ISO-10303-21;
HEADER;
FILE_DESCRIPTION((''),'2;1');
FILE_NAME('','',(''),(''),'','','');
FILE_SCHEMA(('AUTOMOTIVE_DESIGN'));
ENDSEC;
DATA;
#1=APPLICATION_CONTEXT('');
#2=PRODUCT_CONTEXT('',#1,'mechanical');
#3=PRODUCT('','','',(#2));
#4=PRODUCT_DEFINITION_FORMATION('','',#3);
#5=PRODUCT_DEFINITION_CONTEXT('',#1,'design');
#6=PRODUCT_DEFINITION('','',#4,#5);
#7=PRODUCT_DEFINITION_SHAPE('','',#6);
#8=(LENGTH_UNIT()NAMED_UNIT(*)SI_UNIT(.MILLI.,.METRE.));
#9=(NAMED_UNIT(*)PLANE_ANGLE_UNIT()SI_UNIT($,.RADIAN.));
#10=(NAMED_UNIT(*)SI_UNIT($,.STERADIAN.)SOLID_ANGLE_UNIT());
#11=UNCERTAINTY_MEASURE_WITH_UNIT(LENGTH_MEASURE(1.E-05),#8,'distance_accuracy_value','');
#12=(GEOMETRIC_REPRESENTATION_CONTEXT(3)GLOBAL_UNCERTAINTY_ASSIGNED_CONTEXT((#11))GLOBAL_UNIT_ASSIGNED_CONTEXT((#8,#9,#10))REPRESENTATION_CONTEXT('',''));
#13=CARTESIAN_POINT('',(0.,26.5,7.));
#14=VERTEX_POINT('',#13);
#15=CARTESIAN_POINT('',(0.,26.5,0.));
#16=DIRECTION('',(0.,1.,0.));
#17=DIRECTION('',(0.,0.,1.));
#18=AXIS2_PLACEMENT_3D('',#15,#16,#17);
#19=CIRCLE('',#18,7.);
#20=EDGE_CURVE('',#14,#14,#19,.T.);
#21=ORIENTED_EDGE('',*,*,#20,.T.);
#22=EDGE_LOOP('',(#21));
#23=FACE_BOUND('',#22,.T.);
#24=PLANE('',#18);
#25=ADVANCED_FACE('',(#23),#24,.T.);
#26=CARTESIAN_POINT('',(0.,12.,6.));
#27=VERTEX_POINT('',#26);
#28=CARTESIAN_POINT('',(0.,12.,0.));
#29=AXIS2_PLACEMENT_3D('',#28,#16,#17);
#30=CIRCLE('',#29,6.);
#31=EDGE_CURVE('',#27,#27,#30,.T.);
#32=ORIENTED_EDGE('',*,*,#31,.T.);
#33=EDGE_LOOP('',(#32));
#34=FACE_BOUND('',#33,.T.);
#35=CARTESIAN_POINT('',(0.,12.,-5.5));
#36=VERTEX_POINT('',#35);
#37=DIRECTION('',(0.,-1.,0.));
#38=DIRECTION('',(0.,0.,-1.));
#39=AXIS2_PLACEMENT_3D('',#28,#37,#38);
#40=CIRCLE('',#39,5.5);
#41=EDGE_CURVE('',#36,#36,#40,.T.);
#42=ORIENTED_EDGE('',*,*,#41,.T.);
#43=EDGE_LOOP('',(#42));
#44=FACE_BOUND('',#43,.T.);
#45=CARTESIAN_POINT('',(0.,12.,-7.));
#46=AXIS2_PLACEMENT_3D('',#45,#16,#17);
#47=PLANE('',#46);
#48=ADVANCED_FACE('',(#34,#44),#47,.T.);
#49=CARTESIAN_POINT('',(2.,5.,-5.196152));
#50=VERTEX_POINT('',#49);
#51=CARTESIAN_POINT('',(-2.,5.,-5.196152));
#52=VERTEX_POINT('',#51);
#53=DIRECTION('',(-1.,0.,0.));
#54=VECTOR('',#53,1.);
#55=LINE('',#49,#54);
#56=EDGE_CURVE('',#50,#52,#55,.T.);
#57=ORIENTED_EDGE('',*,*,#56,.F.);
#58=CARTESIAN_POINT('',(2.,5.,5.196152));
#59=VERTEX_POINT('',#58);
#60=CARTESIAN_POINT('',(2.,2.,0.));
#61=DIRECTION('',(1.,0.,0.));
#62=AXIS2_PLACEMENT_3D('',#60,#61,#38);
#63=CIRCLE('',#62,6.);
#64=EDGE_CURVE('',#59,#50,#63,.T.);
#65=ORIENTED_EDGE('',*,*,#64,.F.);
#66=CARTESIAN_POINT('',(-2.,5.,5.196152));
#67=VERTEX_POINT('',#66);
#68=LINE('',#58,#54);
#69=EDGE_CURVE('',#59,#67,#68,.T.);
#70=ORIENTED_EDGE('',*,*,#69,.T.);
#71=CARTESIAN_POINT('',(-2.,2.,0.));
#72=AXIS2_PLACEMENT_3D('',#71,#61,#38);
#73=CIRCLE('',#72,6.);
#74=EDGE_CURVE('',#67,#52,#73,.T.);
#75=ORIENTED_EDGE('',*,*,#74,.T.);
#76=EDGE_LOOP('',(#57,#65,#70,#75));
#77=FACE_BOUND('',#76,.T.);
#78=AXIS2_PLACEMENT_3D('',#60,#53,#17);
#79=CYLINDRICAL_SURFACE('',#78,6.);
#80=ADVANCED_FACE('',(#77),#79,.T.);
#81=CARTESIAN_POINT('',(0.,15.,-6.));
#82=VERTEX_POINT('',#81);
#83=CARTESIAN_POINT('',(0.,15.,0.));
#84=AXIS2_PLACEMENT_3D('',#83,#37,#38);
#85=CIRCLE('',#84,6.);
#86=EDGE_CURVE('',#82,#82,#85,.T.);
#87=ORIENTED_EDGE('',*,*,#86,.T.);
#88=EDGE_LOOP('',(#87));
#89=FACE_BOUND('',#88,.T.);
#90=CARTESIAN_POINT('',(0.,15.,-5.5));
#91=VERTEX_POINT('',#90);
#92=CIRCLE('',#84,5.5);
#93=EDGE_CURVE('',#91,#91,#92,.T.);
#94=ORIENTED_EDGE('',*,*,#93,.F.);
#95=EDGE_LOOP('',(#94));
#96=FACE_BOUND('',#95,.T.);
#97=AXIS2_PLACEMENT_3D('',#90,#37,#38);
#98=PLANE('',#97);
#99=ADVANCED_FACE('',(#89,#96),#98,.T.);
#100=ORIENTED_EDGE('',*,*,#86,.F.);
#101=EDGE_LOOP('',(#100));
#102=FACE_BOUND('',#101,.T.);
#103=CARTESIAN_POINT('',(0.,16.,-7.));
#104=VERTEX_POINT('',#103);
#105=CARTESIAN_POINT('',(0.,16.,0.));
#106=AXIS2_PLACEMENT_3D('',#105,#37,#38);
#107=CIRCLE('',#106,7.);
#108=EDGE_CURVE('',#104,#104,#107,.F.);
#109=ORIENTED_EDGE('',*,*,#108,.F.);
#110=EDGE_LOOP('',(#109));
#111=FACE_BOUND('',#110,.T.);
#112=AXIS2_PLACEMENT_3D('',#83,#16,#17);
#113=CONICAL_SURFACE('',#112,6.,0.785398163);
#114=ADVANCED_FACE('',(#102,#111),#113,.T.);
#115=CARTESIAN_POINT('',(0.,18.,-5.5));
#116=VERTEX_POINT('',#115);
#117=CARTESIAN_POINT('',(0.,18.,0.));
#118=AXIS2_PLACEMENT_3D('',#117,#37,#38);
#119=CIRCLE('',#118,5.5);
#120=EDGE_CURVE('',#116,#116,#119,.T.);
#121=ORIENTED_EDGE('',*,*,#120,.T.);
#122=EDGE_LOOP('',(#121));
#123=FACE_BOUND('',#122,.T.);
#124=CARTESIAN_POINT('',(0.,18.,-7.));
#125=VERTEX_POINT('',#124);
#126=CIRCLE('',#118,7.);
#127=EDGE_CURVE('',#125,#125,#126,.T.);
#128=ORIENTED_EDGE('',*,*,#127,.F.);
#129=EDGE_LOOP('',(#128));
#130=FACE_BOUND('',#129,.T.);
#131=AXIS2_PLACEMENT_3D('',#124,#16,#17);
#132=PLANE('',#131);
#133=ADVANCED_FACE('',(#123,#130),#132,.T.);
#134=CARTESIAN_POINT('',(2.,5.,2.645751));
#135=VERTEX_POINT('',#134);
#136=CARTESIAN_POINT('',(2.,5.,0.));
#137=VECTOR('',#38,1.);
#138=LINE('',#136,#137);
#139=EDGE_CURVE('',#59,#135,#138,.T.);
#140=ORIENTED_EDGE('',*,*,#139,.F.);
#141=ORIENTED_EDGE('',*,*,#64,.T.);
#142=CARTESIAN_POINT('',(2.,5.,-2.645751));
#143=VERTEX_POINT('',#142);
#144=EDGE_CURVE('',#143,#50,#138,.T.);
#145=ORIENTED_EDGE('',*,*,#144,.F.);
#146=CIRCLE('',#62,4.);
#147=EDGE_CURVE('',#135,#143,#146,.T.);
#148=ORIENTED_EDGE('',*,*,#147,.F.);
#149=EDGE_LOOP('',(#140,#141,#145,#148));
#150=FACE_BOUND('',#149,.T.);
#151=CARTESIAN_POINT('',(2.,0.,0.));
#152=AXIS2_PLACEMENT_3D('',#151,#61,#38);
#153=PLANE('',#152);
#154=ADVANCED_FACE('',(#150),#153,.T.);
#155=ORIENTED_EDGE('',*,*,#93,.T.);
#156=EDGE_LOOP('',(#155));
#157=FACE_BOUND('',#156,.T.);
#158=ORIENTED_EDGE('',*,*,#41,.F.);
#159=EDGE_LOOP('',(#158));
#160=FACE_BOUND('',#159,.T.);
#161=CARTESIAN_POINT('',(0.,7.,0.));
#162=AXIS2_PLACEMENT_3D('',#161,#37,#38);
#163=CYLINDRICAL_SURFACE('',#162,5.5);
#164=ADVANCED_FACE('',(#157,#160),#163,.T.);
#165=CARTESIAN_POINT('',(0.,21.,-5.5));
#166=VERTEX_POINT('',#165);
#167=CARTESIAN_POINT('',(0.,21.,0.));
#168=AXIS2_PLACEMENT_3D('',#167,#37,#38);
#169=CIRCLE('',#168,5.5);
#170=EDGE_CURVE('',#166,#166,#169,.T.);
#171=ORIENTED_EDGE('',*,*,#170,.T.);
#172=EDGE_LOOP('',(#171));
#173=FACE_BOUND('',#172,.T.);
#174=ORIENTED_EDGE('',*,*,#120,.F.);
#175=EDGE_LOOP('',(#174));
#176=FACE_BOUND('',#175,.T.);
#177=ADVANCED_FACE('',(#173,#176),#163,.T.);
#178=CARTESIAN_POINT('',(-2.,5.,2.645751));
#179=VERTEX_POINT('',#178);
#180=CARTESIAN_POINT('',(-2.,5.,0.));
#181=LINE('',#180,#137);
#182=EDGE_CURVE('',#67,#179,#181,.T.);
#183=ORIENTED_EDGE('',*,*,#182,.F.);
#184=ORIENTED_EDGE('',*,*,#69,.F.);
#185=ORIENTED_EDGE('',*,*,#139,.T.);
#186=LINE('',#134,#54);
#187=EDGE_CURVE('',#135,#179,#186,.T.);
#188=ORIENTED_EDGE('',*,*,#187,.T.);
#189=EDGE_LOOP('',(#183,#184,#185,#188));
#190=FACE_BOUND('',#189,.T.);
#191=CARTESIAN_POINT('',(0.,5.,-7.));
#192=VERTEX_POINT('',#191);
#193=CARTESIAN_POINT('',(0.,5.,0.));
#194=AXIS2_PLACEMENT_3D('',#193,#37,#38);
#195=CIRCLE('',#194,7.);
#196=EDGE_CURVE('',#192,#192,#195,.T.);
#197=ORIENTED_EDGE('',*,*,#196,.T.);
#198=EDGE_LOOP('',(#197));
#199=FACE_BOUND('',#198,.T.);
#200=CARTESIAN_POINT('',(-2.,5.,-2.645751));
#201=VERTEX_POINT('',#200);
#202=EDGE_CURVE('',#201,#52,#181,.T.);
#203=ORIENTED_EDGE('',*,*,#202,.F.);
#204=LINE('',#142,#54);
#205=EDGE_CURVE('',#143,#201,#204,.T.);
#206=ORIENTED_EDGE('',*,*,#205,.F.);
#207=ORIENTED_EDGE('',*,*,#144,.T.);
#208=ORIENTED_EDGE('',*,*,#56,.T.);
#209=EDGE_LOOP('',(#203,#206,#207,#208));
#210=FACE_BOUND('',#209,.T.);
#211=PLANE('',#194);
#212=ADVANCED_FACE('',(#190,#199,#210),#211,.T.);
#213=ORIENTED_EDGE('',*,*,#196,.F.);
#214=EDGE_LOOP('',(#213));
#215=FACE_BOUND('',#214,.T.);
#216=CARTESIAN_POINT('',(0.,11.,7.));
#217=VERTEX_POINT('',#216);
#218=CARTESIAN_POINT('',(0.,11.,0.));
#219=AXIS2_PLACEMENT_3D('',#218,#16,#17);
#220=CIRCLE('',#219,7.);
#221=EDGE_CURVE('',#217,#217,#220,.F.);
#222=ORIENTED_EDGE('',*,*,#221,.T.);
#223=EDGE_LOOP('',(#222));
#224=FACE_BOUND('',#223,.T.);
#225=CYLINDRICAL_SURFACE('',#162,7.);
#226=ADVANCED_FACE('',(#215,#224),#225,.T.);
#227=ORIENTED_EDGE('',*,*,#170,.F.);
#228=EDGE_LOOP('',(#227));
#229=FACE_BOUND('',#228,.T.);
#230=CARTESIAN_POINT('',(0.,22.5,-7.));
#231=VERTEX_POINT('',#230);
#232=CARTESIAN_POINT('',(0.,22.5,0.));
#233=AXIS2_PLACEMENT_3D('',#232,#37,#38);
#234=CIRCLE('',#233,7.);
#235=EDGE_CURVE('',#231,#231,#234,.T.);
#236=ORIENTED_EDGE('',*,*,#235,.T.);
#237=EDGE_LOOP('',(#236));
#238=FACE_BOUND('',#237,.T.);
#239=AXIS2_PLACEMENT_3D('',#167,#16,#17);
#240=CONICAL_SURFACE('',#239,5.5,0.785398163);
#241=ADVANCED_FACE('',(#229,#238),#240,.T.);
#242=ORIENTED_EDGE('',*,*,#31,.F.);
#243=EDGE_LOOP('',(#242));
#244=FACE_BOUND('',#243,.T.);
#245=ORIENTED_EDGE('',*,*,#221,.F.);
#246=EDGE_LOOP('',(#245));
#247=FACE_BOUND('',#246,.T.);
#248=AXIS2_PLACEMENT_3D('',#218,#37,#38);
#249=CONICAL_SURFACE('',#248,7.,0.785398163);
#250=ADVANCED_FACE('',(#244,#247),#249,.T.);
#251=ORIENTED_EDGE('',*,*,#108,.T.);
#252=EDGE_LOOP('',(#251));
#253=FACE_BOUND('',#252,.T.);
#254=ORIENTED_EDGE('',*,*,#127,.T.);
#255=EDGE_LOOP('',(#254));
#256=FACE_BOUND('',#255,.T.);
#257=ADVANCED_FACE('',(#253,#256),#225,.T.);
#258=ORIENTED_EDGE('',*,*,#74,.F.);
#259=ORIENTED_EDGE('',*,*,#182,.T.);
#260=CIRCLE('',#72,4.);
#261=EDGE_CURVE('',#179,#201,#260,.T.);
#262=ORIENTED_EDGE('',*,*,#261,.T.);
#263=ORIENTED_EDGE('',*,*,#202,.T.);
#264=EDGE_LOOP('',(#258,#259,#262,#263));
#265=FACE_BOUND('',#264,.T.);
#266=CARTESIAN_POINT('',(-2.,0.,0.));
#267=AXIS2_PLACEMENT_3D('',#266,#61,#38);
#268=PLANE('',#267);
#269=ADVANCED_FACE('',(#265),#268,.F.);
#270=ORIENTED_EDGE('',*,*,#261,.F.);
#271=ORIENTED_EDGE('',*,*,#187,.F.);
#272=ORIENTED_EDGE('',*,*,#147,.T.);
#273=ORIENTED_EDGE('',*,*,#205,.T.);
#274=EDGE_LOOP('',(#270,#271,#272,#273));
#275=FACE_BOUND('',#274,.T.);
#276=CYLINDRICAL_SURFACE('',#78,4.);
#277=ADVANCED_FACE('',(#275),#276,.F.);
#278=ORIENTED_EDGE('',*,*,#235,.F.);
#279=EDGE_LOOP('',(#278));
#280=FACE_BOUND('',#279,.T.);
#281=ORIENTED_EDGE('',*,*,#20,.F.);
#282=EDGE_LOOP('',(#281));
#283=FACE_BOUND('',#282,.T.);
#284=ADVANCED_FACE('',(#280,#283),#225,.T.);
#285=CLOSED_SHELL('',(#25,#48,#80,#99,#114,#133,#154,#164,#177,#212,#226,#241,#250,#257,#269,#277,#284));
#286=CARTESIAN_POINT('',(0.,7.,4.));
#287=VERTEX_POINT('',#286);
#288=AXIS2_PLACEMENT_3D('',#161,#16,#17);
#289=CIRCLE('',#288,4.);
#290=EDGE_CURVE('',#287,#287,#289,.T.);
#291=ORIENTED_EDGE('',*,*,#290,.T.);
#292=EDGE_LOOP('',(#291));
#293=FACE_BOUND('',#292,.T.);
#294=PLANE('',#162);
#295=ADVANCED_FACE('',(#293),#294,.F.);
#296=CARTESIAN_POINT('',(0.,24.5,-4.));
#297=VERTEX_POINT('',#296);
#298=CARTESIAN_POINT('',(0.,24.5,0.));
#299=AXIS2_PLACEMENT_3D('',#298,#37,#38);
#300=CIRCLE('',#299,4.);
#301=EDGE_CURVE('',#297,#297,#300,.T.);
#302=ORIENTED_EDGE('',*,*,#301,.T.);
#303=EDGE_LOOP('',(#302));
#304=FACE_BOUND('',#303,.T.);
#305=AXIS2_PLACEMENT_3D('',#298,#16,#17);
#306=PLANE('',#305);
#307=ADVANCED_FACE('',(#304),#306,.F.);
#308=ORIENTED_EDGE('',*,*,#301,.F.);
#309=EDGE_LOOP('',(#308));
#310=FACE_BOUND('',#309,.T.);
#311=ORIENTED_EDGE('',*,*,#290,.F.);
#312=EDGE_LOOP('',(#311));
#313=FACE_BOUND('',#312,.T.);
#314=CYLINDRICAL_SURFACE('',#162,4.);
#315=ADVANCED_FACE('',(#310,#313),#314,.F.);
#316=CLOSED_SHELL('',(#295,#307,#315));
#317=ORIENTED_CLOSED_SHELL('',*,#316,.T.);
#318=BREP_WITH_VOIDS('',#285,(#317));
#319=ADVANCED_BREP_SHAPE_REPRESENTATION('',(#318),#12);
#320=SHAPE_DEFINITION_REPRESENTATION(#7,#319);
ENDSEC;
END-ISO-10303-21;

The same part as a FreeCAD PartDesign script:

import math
import FreeCAD as App
import Part
import Sketcher
from FreeCAD import Vector
Q = App.Units.Quantity


def edges_at(feature, points):
    """Names of the edges that pass closest to the given points."""
    edges = feature.Shape.Edges
    near = lambda p: min(range(len(edges)), key=lambda i: edges[i].distToShape(Part.Vertex(*p))[0])
    return sorted({f"Edge{near(p) + 1}" for p in points})


def add_polygon(sketch, points):
    """Adds a closed chain of lines whose ends are joined by coincident constraints."""
    first, n = sketch.GeometryCount, len(points)
    for a, b in zip(points, points[1:] + points[:1]):
        sketch.addGeometry(Part.LineSegment(App.Vector(*a, 0), App.Vector(*b, 0)), False)
    for i in range(n):
        sketch.addConstraint(Sketcher.Constraint("Coincident", first + i, 2, first + (i + 1) % n, 1))

doc = App.newDocument("Part")
body = doc.addObject("PartDesign::Body", "Body")

# Sketch on XZ plane
sketch1 = body.newObject("Sketcher::SketchObject", "Sketch")
sketch1.AttachmentSupport = (doc.getObject("XZ_Plane"), [""])
sketch1.MapMode = "FlatFace"
add_polygon(sketch1, [(-18.35, -20), (-18.35, 20), (18.35, 20), (18.35, -20)])  # lines 0-3
sketch1.addGeometry(Part.Circle(Vector(0, 0, 0), Vector(0, 0, 1), 4), False)  # 4
sketch1.addConstraint([
    Sketcher.Constraint("Vertical", 0),
    Sketcher.Constraint("Horizontal", 1),
    Sketcher.Constraint("Vertical", 2),
    Sketcher.Constraint("Horizontal", 3),
    Sketcher.Constraint("Coincident", 4, 3, -1, 1),
    Sketcher.Constraint("Symmetric", 0, 2, 2, 2, -1, 1),
    Sketcher.Constraint("Diameter", 4, 8.0),
    Sketcher.Constraint("DistanceY", 0, 1, 0, 2, 40.0),
    Sketcher.Constraint("DistanceX", 1, 1, 1, 2, 36.7),
])
pad1 = body.newObject("PartDesign::Pad", "Pad")
pad1.Profile = sketch1
pad1.Length = 7
pad1.Reversed = True

# Sketch on YZ plane
sketch2 = body.newObject("Sketcher::SketchObject", "Sketch001")
sketch2.AttachmentSupport = (doc.getObject("YZ_Plane"), [""])
sketch2.MapMode = "FlatFace"
add_polygon(sketch2, [(7, -7), (12, -7), (12, -5.5), (15, -5.5), (15, -7), (18, -7), (18, -5.5), (21, -5.5), (22.5, -7), (24.5, -7), (24.5, -4), (7, -4)])  # lines 0-11
sketch2.addConstraint([
    Sketcher.Constraint("Horizontal", 0),
    Sketcher.Constraint("Vertical", 1),
    Sketcher.Constraint("Horizontal", 2),
    Sketcher.Constraint("Vertical", 3),
    Sketcher.Constraint("Horizontal", 4),
    Sketcher.Constraint("Vertical", 5),
    Sketcher.Constraint("Horizontal", 6),
    Sketcher.Constraint("Horizontal", 8),
    Sketcher.Constraint("Vertical", 9),
    Sketcher.Constraint("Horizontal", 10),
    Sketcher.Constraint("Vertical", 11),
    Sketcher.Constraint("Horizontal", 0, 2, 3, 2),
    Sketcher.Constraint("Horizontal", 2, 2, 5, 2),
    Sketcher.Constraint("Horizontal", 4, 2, 7, 2),
    Sketcher.Constraint("Equal", 2, 4),
    Sketcher.Constraint("Equal", 4, 6),
    Sketcher.Constraint("Equal", 6, 9),
    Sketcher.Constraint("DistanceX", 0, 1, 0, 2, 5.0),
    Sketcher.Constraint("DistanceX", 2, 1, 2, 2, 3.0),
    Sketcher.Constraint("DistanceX", 8, 1, 8, 2, 2.0),
    Sketcher.Constraint("Angle", 7, Q("-45 deg")),
    Sketcher.Constraint("DistanceX", 10, 2, 10, 1, 17.5),
    Sketcher.Constraint("DistanceX", -1, 1, 0, 2, 12.0),
    Sketcher.Constraint("DistanceY", 0, 2, -1, 1, 7.0),
])
revolution = body.newObject("PartDesign::Revolution", "Revolution")
revolution.Profile = sketch2
revolution.ReferenceAxis = (sketch2, ["H_Axis"])
revolution.Angle = 360
doc.recompute()

chamfer = body.newObject("PartDesign::Chamfer", "Chamfer")
chamfer.Base = (revolution, edges_at(revolution, [(0, 12, 7), (0, 15, 7)]))
chamfer.Size = 1

# Sketch on XZ plane
sketch3 = body.newObject("Sketcher::SketchObject", "Sketch002")
sketch3.AttachmentSupport = (doc.getObject("XZ_Plane"), [""])
sketch3.MapMode = "FlatFace"
sketch3.addGeometry(Part.Circle(Vector(0, 0, 0), Vector(0, 0, 1), 6.55), False)
sketch3.addConstraint([
    Sketcher.Constraint("Coincident", 0, 3, -1, 1),
    Sketcher.Constraint("Diameter", 0, 13.1),
])
pocket1 = body.newObject("PartDesign::Pocket", "Pocket")
pocket1.Profile = sketch3
pocket1.Length = 2

# Sketch on XY plane
sketch4 = body.newObject("Sketcher::SketchObject", "Sketch003")
sketch4.AttachmentSupport = (doc.getObject("XY_Plane"), [""])
sketch4.MapMode = "FlatFace"
sketch4.AttachmentOffset = App.Placement(Vector(0, 0, 20), App.Rotation())
add_polygon(sketch4, [(-18.35, 7), (-18.35, 0), (18.35, 0), (18.35, 7)])  # lines 0-3
sketch4.addConstraint([
    Sketcher.Constraint("Vertical", 0),
    Sketcher.Constraint("Horizontal", 1),
    Sketcher.Constraint("Vertical", 2),
    Sketcher.Constraint("Horizontal", 3),
    Sketcher.Constraint("Symmetric", 0, 2, 1, 2, -1, 1),
    Sketcher.Constraint("DistanceY", 0, 2, 0, 1, 7.0),
    Sketcher.Constraint("DistanceX", 1, 1, 1, 2, 36.7),
])
pocket2 = body.newObject("PartDesign::Pocket", "Pocket001")
pocket2.Profile = sketch4
pocket2.Type = "ThroughAll"

# Sketch on XZ plane
sketch5 = body.newObject("Sketcher::SketchObject", "Sketch004")
sketch5.AttachmentSupport = (doc.getObject("XZ_Plane"), [""])
sketch5.MapMode = "FlatFace"
sketch5.AttachmentOffset = App.Placement(Vector(0, 0, -7), App.Rotation())
sketch5.addGeometry(Part.Circle(Vector(0, 0, 0), Vector(0, 0, 1), 7), False)
sketch5.addConstraint([
    Sketcher.Constraint("Coincident", 0, 3, -1, 1),
    Sketcher.Constraint("Diameter", 0, 14.0),
])
pad2 = body.newObject("PartDesign::Pad", "Pad001")
pad2.Profile = sketch5
pad2.Length = 2

# Sketch on XZ plane
sketch6 = body.newObject("Sketcher::SketchObject", "Sketch005")
sketch6.AttachmentSupport = (doc.getObject("XZ_Plane"), [""])
sketch6.MapMode = "FlatFace"
sketch6.AttachmentOffset = App.Placement(Vector(0, 0, -26.5), App.Rotation())
sketch6.addGeometry(Part.Circle(Vector(0, 0, 0), Vector(0, 0, 1), 7), False)
sketch6.addConstraint([
    Sketcher.Constraint("Coincident", 0, 3, -1, 1),
    Sketcher.Constraint("Diameter", 0, 14.0),
])
pad3 = body.newObject("PartDesign::Pad", "Pad002")
pad3.Profile = sketch6
pad3.Length = 2

# Sketch on YZ plane
sketch7 = body.newObject("Sketcher::SketchObject", "Sketch006")
sketch7.AttachmentSupport = (doc.getObject("YZ_Plane"), [""])
sketch7.MapMode = "FlatFace"
sketch7.addGeometry([
    Part.LineSegment(Vector(5, 2.645751, 0), Vector(5, 5.196152, 0)),
    Part.ArcOfCircle(Part.Circle(Vector(2, 0, 0), Vector(0, 0, 1), 6), math.radians(60), math.radians(300)),
    Part.LineSegment(Vector(5, -5.196152, 0), Vector(5, -2.645751, 0)),
    Part.ArcOfCircle(Part.Circle(Vector(2, 0, 0), Vector(0, 0, 1), 4), math.radians(41.409622), math.radians(318.590378)),
], False)
sketch7.addConstraint([
    Sketcher.Constraint("Coincident", 0, 2, 1, 1),
    Sketcher.Constraint("Coincident", 1, 2, 2, 1),
    Sketcher.Constraint("Coincident", 2, 2, 3, 2),
    Sketcher.Constraint("Coincident", 3, 1, 0, 1),
    Sketcher.Constraint("Vertical", 0),
    Sketcher.Constraint("Vertical", 2),
    Sketcher.Constraint("Coincident", 3, 3, 1, 3),
    Sketcher.Constraint("Symmetric", 0, 2, 1, 2, -1),
    Sketcher.Constraint("Radius", 1, 6.0),
    Sketcher.Constraint("Radius", 3, 4.0),
    Sketcher.Constraint("DistanceX", -1, 1, 1, 3, 2.0),
    Sketcher.Constraint("DistanceX", -1, 1, 0, 2, 5.0),
])
pad4 = body.newObject("PartDesign::Pad", "Pad003")
pad4.Profile = sketch7
pad4.Length = 4
pad4.Midplane = True

doc.recompute()
